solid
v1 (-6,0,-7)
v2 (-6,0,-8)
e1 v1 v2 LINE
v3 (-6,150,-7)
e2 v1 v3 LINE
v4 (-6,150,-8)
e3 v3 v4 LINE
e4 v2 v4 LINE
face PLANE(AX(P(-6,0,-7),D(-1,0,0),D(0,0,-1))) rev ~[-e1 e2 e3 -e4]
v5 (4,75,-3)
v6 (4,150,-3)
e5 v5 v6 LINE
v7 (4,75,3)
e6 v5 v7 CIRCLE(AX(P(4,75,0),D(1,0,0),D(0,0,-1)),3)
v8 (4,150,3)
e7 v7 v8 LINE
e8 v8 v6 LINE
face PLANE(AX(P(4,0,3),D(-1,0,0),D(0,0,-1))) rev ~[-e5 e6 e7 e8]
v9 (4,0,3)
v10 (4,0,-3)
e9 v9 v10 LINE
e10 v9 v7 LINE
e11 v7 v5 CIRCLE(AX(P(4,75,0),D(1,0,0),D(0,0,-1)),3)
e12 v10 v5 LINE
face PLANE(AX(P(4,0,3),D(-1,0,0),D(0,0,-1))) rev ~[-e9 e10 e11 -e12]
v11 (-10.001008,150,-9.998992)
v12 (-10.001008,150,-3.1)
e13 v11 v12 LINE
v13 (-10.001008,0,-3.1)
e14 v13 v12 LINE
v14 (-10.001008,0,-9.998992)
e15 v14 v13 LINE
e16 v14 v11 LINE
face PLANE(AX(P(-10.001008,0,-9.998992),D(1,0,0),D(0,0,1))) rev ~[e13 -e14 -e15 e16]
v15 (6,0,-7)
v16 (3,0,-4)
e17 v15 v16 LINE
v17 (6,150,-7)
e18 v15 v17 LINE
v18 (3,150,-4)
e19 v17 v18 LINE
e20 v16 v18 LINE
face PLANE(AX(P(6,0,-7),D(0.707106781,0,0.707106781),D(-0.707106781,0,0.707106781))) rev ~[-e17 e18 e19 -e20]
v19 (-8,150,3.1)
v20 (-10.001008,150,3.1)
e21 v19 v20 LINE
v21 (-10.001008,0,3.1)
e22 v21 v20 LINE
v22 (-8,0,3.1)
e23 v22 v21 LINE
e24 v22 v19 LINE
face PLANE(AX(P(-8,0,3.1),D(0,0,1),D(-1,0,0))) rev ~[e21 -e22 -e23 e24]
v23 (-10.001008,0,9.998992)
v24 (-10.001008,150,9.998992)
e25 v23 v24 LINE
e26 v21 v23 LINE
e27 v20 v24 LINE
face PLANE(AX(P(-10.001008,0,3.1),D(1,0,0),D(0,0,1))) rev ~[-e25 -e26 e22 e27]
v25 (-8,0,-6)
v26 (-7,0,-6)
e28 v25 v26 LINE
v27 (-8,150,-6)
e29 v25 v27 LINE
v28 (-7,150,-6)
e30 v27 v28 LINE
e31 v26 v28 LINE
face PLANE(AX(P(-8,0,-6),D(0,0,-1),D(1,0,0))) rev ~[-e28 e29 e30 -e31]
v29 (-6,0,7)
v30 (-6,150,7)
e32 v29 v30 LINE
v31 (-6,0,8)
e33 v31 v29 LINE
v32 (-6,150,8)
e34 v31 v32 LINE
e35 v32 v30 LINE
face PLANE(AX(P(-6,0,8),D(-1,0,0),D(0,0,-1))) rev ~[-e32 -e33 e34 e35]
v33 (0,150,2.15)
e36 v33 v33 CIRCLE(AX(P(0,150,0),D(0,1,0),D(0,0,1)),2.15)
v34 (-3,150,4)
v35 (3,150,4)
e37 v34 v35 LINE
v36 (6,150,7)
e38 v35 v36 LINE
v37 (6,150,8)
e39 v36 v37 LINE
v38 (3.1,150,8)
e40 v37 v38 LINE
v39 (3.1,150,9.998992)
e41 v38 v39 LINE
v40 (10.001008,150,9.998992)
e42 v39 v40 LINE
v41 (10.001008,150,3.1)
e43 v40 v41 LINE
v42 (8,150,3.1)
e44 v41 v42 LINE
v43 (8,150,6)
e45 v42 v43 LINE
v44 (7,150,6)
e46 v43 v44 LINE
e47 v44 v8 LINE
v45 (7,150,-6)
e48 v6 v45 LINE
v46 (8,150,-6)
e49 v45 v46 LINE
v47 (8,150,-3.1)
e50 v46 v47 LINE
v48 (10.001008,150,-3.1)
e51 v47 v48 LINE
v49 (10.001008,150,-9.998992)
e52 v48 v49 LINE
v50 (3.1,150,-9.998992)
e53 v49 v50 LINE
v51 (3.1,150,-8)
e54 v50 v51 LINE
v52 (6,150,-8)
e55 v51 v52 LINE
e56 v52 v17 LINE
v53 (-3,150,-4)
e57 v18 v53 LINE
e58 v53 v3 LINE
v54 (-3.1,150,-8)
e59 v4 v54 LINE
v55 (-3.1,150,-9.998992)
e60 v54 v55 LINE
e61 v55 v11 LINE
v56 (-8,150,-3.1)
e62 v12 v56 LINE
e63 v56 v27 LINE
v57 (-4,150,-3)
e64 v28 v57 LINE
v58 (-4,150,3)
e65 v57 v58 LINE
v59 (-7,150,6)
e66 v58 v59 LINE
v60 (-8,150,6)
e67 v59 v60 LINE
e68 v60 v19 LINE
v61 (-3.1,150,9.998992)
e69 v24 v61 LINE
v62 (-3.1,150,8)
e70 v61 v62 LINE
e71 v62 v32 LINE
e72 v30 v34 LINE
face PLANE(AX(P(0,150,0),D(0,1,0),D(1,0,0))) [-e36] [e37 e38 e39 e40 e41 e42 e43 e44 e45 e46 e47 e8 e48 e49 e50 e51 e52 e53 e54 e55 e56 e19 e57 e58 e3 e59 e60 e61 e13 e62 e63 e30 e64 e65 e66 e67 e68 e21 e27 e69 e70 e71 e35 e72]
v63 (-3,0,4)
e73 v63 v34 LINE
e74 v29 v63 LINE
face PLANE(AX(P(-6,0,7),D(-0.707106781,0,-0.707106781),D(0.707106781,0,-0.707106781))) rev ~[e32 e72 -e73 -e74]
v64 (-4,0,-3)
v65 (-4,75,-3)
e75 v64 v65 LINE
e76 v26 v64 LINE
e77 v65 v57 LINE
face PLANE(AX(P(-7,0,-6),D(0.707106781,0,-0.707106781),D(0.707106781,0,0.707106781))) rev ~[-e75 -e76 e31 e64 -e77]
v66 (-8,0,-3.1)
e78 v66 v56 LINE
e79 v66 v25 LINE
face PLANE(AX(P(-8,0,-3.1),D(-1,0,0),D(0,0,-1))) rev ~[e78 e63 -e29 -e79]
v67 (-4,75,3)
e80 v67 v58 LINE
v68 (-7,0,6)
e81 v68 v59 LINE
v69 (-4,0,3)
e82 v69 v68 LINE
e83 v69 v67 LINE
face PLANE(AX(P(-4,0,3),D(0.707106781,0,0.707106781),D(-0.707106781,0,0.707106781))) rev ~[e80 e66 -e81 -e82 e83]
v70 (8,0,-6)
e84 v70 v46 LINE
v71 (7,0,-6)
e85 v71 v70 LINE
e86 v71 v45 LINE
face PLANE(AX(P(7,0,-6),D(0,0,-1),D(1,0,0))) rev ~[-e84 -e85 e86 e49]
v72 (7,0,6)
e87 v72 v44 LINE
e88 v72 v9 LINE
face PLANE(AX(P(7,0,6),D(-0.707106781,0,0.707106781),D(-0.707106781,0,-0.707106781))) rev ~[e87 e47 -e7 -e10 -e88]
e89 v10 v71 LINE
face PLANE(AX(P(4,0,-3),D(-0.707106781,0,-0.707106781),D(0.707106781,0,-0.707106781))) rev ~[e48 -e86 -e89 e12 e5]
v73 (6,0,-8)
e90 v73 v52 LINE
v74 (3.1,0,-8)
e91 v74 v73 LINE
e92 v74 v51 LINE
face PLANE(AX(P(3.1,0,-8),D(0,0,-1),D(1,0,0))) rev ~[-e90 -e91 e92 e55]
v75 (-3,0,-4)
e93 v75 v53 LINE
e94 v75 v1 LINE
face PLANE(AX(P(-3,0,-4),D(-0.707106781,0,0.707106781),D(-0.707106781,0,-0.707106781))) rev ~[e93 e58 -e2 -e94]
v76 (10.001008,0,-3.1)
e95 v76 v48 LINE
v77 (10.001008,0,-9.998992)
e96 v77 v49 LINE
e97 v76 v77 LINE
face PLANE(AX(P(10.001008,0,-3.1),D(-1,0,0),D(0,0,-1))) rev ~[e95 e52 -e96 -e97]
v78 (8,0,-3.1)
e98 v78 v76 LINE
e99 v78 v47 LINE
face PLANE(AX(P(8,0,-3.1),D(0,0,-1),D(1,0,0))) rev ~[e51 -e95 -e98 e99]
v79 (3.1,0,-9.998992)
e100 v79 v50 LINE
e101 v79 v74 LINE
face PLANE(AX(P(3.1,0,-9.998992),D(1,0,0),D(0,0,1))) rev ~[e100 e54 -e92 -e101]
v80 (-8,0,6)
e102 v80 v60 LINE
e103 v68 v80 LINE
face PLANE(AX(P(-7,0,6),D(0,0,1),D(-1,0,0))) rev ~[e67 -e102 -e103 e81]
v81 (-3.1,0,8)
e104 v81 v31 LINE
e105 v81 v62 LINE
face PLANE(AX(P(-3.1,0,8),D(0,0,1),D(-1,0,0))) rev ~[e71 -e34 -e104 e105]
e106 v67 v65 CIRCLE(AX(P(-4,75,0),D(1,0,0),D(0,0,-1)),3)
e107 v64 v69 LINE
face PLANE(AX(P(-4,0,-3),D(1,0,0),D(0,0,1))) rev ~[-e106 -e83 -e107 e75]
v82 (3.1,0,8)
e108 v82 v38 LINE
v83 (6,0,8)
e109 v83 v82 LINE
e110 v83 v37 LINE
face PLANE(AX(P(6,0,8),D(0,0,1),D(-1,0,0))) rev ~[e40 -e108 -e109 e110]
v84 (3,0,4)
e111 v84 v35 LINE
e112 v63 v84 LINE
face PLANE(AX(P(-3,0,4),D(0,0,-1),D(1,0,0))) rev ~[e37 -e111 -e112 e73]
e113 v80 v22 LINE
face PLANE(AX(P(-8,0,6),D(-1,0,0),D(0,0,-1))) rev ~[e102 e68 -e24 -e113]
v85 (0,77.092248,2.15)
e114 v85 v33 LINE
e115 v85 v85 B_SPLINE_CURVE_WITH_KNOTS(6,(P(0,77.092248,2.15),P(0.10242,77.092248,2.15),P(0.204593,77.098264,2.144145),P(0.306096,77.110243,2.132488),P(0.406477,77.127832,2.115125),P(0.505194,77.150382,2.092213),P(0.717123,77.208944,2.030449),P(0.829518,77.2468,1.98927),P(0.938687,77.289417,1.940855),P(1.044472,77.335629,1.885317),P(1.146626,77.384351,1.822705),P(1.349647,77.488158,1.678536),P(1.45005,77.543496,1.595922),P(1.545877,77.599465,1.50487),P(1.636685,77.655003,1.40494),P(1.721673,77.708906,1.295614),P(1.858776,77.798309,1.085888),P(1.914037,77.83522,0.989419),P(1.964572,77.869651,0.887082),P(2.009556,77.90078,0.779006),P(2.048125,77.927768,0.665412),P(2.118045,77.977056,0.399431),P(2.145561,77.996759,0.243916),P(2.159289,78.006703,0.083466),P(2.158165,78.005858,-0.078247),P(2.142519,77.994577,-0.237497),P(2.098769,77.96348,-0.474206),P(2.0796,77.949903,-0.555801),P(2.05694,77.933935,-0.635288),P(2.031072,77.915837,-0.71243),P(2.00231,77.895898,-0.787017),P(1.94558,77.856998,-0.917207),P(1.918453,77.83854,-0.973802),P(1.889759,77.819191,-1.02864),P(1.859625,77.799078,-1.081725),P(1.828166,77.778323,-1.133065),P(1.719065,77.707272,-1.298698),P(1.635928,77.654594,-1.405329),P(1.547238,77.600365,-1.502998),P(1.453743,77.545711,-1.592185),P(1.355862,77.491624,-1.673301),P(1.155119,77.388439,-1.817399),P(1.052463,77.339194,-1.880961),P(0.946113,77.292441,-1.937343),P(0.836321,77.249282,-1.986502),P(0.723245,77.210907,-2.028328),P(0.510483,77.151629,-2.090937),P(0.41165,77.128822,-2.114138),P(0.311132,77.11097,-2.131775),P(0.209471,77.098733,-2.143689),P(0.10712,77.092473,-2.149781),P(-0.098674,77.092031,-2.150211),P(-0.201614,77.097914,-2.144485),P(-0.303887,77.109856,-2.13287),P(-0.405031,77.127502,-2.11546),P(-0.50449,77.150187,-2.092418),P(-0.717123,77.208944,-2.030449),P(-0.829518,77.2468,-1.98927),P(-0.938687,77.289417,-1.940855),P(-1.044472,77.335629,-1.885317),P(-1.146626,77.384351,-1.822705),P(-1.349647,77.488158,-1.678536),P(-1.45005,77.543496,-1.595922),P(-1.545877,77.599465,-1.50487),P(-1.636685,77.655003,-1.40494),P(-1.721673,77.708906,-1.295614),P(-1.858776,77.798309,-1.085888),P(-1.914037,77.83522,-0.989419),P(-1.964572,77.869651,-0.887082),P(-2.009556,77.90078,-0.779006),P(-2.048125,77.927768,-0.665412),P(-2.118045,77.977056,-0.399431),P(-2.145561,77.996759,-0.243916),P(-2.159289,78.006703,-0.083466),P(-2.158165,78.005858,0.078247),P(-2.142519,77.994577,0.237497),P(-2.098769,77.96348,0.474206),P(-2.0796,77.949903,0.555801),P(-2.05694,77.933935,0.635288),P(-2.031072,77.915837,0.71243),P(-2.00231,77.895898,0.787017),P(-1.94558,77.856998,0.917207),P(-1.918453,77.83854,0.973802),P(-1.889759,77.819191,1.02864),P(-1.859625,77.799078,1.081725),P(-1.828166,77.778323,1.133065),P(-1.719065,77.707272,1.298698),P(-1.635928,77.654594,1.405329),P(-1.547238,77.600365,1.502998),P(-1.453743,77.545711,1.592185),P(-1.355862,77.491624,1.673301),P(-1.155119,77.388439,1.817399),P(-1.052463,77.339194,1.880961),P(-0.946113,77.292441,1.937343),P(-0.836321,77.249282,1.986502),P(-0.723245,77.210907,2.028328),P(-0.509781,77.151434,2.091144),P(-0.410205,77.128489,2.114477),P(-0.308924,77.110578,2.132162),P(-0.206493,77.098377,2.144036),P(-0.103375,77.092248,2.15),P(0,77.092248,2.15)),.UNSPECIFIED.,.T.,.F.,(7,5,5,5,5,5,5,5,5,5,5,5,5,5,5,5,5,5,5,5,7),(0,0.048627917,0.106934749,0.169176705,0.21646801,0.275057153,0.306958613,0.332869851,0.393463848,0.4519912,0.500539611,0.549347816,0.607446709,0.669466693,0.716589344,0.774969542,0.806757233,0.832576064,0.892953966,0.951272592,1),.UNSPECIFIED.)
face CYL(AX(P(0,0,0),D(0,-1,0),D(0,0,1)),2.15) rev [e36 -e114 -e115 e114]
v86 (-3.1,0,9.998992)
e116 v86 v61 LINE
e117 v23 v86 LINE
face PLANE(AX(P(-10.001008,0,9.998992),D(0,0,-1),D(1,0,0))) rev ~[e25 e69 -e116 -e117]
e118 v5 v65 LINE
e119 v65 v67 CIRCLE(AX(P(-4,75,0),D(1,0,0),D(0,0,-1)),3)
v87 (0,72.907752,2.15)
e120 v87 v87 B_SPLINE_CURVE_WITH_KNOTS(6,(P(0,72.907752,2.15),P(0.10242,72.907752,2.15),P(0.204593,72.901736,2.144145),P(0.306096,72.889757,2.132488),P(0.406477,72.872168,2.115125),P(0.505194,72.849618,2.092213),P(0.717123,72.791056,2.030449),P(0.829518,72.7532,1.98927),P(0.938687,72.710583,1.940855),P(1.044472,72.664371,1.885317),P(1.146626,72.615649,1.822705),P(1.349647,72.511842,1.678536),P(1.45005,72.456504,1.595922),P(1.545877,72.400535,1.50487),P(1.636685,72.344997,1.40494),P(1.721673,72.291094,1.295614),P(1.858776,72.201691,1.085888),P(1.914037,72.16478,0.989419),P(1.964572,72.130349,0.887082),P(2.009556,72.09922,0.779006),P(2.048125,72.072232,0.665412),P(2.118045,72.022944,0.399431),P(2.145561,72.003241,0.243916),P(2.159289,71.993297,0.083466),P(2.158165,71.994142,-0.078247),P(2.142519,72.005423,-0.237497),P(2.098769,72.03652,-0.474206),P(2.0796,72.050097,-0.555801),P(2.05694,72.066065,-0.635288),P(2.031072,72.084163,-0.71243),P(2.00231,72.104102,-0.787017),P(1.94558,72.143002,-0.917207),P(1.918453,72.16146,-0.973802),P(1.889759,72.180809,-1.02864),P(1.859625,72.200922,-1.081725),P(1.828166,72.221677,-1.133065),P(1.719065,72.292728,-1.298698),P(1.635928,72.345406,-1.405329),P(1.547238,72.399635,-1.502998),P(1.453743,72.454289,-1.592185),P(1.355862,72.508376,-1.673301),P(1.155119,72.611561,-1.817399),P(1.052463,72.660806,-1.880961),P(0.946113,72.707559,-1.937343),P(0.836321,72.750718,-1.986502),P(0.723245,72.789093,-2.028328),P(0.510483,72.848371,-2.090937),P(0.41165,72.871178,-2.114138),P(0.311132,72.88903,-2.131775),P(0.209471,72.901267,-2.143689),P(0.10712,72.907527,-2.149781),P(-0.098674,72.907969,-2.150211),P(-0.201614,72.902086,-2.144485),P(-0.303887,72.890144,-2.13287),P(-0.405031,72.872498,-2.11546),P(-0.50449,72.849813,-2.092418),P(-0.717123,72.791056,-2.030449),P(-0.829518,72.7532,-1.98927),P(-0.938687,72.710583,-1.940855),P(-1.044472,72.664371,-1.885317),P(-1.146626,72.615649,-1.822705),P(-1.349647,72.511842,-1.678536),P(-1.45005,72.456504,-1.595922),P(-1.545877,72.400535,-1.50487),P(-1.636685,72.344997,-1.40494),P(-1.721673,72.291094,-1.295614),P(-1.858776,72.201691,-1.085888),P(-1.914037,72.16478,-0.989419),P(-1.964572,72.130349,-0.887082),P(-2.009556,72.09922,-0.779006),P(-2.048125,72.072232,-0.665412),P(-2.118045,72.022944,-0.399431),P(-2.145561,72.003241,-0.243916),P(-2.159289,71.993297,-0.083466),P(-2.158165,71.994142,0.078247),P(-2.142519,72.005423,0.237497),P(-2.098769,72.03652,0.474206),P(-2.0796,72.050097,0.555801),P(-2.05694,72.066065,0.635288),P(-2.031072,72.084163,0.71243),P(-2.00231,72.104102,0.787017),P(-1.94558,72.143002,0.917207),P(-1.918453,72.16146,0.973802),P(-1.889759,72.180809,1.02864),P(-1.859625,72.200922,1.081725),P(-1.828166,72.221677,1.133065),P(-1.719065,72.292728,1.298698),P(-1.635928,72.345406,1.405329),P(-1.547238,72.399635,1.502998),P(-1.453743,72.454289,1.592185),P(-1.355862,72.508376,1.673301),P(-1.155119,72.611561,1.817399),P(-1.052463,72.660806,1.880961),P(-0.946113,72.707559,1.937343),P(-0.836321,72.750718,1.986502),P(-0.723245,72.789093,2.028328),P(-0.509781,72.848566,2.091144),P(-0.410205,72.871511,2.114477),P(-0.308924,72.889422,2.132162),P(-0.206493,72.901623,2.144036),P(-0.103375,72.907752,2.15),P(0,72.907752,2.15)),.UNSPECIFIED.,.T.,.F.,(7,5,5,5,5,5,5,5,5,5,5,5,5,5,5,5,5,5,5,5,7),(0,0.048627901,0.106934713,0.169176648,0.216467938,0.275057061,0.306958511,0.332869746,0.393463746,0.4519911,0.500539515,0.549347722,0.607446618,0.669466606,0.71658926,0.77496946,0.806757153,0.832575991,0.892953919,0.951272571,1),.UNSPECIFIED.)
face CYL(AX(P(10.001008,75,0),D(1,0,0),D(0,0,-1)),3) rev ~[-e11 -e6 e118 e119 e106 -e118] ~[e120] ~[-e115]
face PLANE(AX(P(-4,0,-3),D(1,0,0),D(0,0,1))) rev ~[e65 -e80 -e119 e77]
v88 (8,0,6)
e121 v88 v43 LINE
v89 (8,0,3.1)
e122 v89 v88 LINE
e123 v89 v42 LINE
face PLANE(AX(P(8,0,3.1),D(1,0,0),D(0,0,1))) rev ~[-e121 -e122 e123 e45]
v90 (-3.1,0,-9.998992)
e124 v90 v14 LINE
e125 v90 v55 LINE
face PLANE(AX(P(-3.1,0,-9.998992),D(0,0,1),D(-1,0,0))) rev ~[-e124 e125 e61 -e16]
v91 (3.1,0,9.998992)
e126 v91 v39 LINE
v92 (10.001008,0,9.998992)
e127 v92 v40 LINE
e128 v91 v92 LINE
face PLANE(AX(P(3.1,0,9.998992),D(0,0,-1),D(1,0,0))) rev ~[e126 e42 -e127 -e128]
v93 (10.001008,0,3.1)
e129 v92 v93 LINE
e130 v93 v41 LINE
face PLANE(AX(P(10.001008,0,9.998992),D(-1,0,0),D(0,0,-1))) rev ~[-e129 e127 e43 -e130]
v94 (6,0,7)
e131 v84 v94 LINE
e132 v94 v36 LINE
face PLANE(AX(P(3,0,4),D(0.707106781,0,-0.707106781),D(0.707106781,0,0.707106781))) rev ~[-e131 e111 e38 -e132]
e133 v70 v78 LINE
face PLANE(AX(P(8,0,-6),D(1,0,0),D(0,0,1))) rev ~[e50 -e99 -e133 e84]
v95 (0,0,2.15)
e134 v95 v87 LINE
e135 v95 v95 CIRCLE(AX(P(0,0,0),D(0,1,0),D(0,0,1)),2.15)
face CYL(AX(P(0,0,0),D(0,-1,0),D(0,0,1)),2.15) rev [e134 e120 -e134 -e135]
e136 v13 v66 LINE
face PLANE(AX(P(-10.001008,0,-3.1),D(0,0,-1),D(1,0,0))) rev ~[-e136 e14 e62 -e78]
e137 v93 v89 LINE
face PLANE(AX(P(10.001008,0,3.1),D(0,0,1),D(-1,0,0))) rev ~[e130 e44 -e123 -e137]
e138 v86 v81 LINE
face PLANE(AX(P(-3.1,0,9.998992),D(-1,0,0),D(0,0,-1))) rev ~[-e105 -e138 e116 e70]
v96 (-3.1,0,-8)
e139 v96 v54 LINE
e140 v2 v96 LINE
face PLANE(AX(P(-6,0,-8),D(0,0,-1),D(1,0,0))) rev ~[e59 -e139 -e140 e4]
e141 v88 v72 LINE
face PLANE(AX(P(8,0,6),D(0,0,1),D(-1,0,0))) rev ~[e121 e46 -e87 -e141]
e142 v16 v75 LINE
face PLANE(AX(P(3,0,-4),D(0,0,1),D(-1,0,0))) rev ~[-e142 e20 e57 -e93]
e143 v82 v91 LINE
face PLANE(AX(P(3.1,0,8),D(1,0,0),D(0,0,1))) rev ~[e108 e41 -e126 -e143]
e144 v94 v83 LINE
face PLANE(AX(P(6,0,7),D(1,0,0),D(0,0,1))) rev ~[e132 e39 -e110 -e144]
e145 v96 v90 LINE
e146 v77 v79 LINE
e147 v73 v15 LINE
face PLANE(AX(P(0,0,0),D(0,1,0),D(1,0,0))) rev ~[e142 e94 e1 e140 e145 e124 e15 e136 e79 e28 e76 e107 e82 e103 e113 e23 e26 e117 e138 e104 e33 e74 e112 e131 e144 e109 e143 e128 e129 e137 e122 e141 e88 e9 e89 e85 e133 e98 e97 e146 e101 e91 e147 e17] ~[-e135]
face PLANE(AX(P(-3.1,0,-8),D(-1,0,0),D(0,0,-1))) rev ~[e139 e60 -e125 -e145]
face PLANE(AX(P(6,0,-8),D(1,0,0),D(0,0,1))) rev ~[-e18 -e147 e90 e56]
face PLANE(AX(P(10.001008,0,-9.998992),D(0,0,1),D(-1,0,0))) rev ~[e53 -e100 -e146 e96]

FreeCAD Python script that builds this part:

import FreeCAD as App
import Part
import Sketcher

V = App.Vector


def add_polygon(sketch, points):
    """Adds a closed chain of lines whose ends are joined by coincident constraints."""
    first, n = sketch.GeometryCount, len(points)
    for a, b in zip(points, points[1:] + points[:1]):
        sketch.addGeometry(Part.LineSegment(App.Vector(*a, 0), App.Vector(*b, 0)), False)
    for i in range(n):
        sketch.addConstraint(Sketcher.Constraint("Coincident", first + i, 2, first + (i + 1) % n, 1))

doc = App.newDocument("Part")
params = doc.addObject("Spreadsheet::Sheet", "Params")
for row, (alias, value) in enumerate([
    ("sketch1_diameter", "4.3 mm"),
    ("sketch1_width", "6 mm"),
    ("sketch1_width2", "1 mm"),
    ("sketch1_width3", "2.9 mm"),
    ("pad1_length", "150 mm"),
    ("sketch2_diameter", "6 mm"),
    ("pocket1_length", "26 mm"),
], start=1):
    params.set(f"A{row}", alias)
    params.set(f"B{row}", "=" + value)
    params.setAlias(f"B{row}", alias)

body = doc.addObject("PartDesign::Body", "Body")

# Sketch on XZ plane
sketch1 = doc.addObject("Sketcher::SketchObject", "Sketch")
body.addObject(sketch1)
sketch1.AttachmentSupport = (doc.XZ_Plane, [""])
sketch1.MapMode = "FlatFace"
add_polygon(sketch1, [(3.1, -8), (6, -8), (6, -7), (3, -4), (-3, -4), (-6, -7), (-6, -8), (-3.1, -8), (-3.1, -10), (-10, -10), (-10, -3.1), (-8, -3.1), (-8, -6), (-7, -6), (-4, -3), (-4, 3), (-7, 6), (-8, 6), (-8, 3.1), (-10, 3.1), (-10, 10), (-3.1, 10), (-3.1, 8), (-6, 8), (-6, 7), (-3, 4), (3, 4), (6, 7), (6, 8), (3.1, 8), (3.1, 10), (10, 10), (10, 3.1), (8, 3.1), (8, 6), (7, 6), (4, 3), (4, -3), (7, -6), (8, -6), (8, -3.1), (10, -3.1), (10, -10), (3.1, -10)])  # lines 0-43
sketch1.addGeometry(Part.Circle(V(0, 0, 0), V(0, 0, 1), 2.1), False)  # 44
sketch1.addConstraint([
    Sketcher.Constraint("Horizontal", 0),
    Sketcher.Constraint("Vertical", 1),
    Sketcher.Constraint("Horizontal", 3),
    Sketcher.Constraint("Vertical", 5),
    Sketcher.Constraint("Horizontal", 6),
    Sketcher.Constraint("Vertical", 7),
    Sketcher.Constraint("Horizontal", 8),
    Sketcher.Constraint("Vertical", 9),
    Sketcher.Constraint("Horizontal", 10),
    Sketcher.Constraint("Vertical", 11),
    Sketcher.Constraint("Horizontal", 12),
    Sketcher.Constraint("Vertical", 14),
    Sketcher.Constraint("Horizontal", 16),
    Sketcher.Constraint("Vertical", 17),
    Sketcher.Constraint("Horizontal", 18),
    Sketcher.Constraint("Vertical", 19),
    Sketcher.Constraint("Horizontal", 20),
    Sketcher.Constraint("Vertical", 21),
    Sketcher.Constraint("Horizontal", 22),
    Sketcher.Constraint("Vertical", 23),
    Sketcher.Constraint("Horizontal", 25),
    Sketcher.Constraint("Vertical", 27),
    Sketcher.Constraint("Horizontal", 28),
    Sketcher.Constraint("Vertical", 29),
    Sketcher.Constraint("Horizontal", 30),
    Sketcher.Constraint("Vertical", 31),
    Sketcher.Constraint("Horizontal", 32),
    Sketcher.Constraint("Vertical", 33),
    Sketcher.Constraint("Horizontal", 34),
    Sketcher.Constraint("Vertical", 36),
    Sketcher.Constraint("Horizontal", 38),
    Sketcher.Constraint("Vertical", 39),
    Sketcher.Constraint("Horizontal", 40),
    Sketcher.Constraint("Vertical", 41),
    Sketcher.Constraint("Horizontal", 42),
    Sketcher.Constraint("Vertical", 43),
    Sketcher.Constraint("Coincident", 44, 3, -1, 1),
    Sketcher.Constraint("Symmetric", 0, 2, 22, 2, -1, 1),
    Sketcher.Constraint("Symmetric", 2, 2, 24, 2, -1, 1),
    Sketcher.Constraint("Symmetric", 4, 2, 26, 2, -1, 1),
    Sketcher.Constraint("Symmetric", 6, 2, 28, 2, -1, 1),
    Sketcher.Constraint("Symmetric", 8, 2, 30, 2, -1, 1),
    Sketcher.Constraint("Symmetric", 10, 2, 32, 2, -1, 1),
    Sketcher.Constraint("Symmetric", 12, 2, 34, 2, -1, 1),
    Sketcher.Constraint("Symmetric", 13, 2, 35, 2, -1, 1),
    Sketcher.Constraint("Symmetric", 15, 2, 37, 2, -1, 1),
    Sketcher.Constraint("Symmetric", 17, 2, 39, 2, -1, 1),
    Sketcher.Constraint("Symmetric", 19, 2, 41, 2, -1, 1),
    Sketcher.Constraint("Symmetric", 1, 2, 4, 2, -2),
    Sketcher.Constraint("Symmetric", 21, 2, 28, 2, -2),
    Sketcher.Constraint("Symmetric", 19, 2, 30, 2, -2),
    Sketcher.Constraint("Symmetric", 17, 2, 32, 2, -2),
    Sketcher.Constraint("Symmetric", 15, 2, 34, 2, -2),
    Sketcher.Constraint("Perpendicular", 2, 4),
    Sketcher.Constraint("Parallel", 4, 13),
    Sketcher.Constraint("Perpendicular", 13, 15),
    Sketcher.Constraint("Parallel", 15, 24),
    Sketcher.Constraint("Perpendicular", 24, 26),
    Sketcher.Constraint("Perpendicular", 35, 37),
    Sketcher.Constraint("Horizontal", 14, 2, 35, 2),
    Sketcher.Constraint("Vertical", 29, 2, 42, 2),
    Sketcher.Constraint("Equal", 38, 1),
    Sketcher.Constraint("Equal", 28, 11),
    Sketcher.Constraint("Equal", 25, 14),
    Sketcher.Constraint("Equal", 4, 13),
    Sketcher.Constraint("Diameter", 44, 4.3),
    Sketcher.Constraint("DistanceX", 3, 2, 3, 1, 6.0),
    Sketcher.Constraint("DistanceX", 12, 1, 12, 2, 1.0),
    Sketcher.Constraint("DistanceX", 0, 1, 0, 2, 2.9),
    Sketcher.Constraint("DistanceX", -1, 1, 0, 2, 6.0),
    Sketcher.Constraint("DistanceY", 0, 2, -1, 1, 8.0),
    Sketcher.Constraint("DistanceX", 10, 2, -1, 1, 8.0),
    Sketcher.Constraint("DistanceX", 8, 2, 8, 1, 6.901008),
    Sketcher.Constraint("DistanceY", 7, 2, 7, 1, 1.998992),
])
sketch1.setExpression("Constraints[109]", "Params.sketch1_diameter")
sketch1.setExpression("Constraints[110]", "Params.sketch1_width")
sketch1.setExpression("Constraints[111]", "Params.sketch1_width2")
sketch1.setExpression("Constraints[112]", "Params.sketch1_width3")
pad1 = doc.addObject("PartDesign::Pad", "Pad")
body.addObject(pad1)
pad1.Profile = sketch1
pad1.setExpression("Length", "Params.pad1_length")
pad1.Reversed = True

# Sketch on YZ plane
sketch2 = doc.addObject("Sketcher::SketchObject", "Sketch001")
body.addObject(sketch2)
sketch2.AttachmentSupport = (doc.YZ_Plane, [""])
sketch2.MapMode = "FlatFace"
sketch2.AttachmentOffset = App.Placement(V(0, 0, 10.001008), App.Rotation())
sketch2.addGeometry(Part.Circle(V(75, 0, 0), V(0, 0, 1), 3), False)
sketch2.addConstraint([
    Sketcher.Constraint("PointOnObject", 0, 3, -1),
    Sketcher.Constraint("Diameter", 0, 6.0),
    Sketcher.Constraint("DistanceX", -1, 1, 0, 3, 75.0),
])
sketch2.setExpression("Constraints[1]", "Params.sketch2_diameter")
pocket1 = doc.addObject("PartDesign::Pocket", "Pocket")
body.addObject(pocket1)
pocket1.Profile = sketch2
pocket1.setExpression("Length", "Params.pocket1_length")

doc.recompute()
